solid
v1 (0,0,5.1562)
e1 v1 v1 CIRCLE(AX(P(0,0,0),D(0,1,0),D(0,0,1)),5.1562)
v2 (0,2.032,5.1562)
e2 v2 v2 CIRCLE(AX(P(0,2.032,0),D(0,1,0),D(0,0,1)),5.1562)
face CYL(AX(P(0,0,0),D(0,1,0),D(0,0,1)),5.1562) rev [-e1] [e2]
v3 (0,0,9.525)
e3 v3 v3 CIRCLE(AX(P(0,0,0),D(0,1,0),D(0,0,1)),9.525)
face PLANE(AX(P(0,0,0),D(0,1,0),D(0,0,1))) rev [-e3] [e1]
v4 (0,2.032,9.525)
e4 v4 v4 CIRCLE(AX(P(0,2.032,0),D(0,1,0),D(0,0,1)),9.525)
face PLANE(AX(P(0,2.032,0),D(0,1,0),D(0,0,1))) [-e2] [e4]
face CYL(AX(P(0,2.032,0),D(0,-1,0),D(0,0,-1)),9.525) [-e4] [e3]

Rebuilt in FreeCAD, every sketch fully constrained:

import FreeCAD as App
import Part
import Sketcher
Q = App.Units.Quantity

doc = App.newDocument("Part")
body = doc.addObject("PartDesign::Body", "Body")

# Sketch on XZ plane
sketch1 = body.newObject("Sketcher::SketchObject", "Sketch")
sketch1.AttachmentSupport = (doc.getObject("XZ_Plane"), [""])
sketch1.MapMode = "FlatFace"
sketch1.addGeometry(Part.Circle(App.Vector(0, 0, 0), App.Vector(0, 0, 1), 9.525), False)
sketch1.addConstraint(Sketcher.Constraint("Coincident", 0, 3, -1, 1))
sketch1.addConstraint(Sketcher.Constraint("Diameter", 0, Q("0.75 in")))
pad1 = body.newObject("PartDesign::Pad", "Pad")
pad1.Profile = sketch1
pad1.Length = Q("0.08 in")
pad1.Reversed = True

# Sketch on XZ plane
sketch2 = body.newObject("Sketcher::SketchObject", "Sketch001")
sketch2.AttachmentSupport = (doc.getObject("XZ_Plane"), [""])
sketch2.MapMode = "FlatFace"
sketch2.AttachmentOffset = App.Placement(App.Vector(0, 0, -0.08 * 25.4), App.Rotation())
sketch2.addGeometry(Part.Circle(App.Vector(0, 0, 0), App.Vector(0, 0, 1), 5.1562), False)
sketch2.addConstraint(Sketcher.Constraint("Coincident", 0, 3, -1, 1))
sketch2.addConstraint(Sketcher.Constraint("Diameter", 0, Q("0.406 in")))
pocket1 = body.newObject("PartDesign::Pocket", "Pocket")
pocket1.Profile = sketch2
pocket1.Type = "ThroughAll"
pocket1.Reversed = True

doc.recompute()
